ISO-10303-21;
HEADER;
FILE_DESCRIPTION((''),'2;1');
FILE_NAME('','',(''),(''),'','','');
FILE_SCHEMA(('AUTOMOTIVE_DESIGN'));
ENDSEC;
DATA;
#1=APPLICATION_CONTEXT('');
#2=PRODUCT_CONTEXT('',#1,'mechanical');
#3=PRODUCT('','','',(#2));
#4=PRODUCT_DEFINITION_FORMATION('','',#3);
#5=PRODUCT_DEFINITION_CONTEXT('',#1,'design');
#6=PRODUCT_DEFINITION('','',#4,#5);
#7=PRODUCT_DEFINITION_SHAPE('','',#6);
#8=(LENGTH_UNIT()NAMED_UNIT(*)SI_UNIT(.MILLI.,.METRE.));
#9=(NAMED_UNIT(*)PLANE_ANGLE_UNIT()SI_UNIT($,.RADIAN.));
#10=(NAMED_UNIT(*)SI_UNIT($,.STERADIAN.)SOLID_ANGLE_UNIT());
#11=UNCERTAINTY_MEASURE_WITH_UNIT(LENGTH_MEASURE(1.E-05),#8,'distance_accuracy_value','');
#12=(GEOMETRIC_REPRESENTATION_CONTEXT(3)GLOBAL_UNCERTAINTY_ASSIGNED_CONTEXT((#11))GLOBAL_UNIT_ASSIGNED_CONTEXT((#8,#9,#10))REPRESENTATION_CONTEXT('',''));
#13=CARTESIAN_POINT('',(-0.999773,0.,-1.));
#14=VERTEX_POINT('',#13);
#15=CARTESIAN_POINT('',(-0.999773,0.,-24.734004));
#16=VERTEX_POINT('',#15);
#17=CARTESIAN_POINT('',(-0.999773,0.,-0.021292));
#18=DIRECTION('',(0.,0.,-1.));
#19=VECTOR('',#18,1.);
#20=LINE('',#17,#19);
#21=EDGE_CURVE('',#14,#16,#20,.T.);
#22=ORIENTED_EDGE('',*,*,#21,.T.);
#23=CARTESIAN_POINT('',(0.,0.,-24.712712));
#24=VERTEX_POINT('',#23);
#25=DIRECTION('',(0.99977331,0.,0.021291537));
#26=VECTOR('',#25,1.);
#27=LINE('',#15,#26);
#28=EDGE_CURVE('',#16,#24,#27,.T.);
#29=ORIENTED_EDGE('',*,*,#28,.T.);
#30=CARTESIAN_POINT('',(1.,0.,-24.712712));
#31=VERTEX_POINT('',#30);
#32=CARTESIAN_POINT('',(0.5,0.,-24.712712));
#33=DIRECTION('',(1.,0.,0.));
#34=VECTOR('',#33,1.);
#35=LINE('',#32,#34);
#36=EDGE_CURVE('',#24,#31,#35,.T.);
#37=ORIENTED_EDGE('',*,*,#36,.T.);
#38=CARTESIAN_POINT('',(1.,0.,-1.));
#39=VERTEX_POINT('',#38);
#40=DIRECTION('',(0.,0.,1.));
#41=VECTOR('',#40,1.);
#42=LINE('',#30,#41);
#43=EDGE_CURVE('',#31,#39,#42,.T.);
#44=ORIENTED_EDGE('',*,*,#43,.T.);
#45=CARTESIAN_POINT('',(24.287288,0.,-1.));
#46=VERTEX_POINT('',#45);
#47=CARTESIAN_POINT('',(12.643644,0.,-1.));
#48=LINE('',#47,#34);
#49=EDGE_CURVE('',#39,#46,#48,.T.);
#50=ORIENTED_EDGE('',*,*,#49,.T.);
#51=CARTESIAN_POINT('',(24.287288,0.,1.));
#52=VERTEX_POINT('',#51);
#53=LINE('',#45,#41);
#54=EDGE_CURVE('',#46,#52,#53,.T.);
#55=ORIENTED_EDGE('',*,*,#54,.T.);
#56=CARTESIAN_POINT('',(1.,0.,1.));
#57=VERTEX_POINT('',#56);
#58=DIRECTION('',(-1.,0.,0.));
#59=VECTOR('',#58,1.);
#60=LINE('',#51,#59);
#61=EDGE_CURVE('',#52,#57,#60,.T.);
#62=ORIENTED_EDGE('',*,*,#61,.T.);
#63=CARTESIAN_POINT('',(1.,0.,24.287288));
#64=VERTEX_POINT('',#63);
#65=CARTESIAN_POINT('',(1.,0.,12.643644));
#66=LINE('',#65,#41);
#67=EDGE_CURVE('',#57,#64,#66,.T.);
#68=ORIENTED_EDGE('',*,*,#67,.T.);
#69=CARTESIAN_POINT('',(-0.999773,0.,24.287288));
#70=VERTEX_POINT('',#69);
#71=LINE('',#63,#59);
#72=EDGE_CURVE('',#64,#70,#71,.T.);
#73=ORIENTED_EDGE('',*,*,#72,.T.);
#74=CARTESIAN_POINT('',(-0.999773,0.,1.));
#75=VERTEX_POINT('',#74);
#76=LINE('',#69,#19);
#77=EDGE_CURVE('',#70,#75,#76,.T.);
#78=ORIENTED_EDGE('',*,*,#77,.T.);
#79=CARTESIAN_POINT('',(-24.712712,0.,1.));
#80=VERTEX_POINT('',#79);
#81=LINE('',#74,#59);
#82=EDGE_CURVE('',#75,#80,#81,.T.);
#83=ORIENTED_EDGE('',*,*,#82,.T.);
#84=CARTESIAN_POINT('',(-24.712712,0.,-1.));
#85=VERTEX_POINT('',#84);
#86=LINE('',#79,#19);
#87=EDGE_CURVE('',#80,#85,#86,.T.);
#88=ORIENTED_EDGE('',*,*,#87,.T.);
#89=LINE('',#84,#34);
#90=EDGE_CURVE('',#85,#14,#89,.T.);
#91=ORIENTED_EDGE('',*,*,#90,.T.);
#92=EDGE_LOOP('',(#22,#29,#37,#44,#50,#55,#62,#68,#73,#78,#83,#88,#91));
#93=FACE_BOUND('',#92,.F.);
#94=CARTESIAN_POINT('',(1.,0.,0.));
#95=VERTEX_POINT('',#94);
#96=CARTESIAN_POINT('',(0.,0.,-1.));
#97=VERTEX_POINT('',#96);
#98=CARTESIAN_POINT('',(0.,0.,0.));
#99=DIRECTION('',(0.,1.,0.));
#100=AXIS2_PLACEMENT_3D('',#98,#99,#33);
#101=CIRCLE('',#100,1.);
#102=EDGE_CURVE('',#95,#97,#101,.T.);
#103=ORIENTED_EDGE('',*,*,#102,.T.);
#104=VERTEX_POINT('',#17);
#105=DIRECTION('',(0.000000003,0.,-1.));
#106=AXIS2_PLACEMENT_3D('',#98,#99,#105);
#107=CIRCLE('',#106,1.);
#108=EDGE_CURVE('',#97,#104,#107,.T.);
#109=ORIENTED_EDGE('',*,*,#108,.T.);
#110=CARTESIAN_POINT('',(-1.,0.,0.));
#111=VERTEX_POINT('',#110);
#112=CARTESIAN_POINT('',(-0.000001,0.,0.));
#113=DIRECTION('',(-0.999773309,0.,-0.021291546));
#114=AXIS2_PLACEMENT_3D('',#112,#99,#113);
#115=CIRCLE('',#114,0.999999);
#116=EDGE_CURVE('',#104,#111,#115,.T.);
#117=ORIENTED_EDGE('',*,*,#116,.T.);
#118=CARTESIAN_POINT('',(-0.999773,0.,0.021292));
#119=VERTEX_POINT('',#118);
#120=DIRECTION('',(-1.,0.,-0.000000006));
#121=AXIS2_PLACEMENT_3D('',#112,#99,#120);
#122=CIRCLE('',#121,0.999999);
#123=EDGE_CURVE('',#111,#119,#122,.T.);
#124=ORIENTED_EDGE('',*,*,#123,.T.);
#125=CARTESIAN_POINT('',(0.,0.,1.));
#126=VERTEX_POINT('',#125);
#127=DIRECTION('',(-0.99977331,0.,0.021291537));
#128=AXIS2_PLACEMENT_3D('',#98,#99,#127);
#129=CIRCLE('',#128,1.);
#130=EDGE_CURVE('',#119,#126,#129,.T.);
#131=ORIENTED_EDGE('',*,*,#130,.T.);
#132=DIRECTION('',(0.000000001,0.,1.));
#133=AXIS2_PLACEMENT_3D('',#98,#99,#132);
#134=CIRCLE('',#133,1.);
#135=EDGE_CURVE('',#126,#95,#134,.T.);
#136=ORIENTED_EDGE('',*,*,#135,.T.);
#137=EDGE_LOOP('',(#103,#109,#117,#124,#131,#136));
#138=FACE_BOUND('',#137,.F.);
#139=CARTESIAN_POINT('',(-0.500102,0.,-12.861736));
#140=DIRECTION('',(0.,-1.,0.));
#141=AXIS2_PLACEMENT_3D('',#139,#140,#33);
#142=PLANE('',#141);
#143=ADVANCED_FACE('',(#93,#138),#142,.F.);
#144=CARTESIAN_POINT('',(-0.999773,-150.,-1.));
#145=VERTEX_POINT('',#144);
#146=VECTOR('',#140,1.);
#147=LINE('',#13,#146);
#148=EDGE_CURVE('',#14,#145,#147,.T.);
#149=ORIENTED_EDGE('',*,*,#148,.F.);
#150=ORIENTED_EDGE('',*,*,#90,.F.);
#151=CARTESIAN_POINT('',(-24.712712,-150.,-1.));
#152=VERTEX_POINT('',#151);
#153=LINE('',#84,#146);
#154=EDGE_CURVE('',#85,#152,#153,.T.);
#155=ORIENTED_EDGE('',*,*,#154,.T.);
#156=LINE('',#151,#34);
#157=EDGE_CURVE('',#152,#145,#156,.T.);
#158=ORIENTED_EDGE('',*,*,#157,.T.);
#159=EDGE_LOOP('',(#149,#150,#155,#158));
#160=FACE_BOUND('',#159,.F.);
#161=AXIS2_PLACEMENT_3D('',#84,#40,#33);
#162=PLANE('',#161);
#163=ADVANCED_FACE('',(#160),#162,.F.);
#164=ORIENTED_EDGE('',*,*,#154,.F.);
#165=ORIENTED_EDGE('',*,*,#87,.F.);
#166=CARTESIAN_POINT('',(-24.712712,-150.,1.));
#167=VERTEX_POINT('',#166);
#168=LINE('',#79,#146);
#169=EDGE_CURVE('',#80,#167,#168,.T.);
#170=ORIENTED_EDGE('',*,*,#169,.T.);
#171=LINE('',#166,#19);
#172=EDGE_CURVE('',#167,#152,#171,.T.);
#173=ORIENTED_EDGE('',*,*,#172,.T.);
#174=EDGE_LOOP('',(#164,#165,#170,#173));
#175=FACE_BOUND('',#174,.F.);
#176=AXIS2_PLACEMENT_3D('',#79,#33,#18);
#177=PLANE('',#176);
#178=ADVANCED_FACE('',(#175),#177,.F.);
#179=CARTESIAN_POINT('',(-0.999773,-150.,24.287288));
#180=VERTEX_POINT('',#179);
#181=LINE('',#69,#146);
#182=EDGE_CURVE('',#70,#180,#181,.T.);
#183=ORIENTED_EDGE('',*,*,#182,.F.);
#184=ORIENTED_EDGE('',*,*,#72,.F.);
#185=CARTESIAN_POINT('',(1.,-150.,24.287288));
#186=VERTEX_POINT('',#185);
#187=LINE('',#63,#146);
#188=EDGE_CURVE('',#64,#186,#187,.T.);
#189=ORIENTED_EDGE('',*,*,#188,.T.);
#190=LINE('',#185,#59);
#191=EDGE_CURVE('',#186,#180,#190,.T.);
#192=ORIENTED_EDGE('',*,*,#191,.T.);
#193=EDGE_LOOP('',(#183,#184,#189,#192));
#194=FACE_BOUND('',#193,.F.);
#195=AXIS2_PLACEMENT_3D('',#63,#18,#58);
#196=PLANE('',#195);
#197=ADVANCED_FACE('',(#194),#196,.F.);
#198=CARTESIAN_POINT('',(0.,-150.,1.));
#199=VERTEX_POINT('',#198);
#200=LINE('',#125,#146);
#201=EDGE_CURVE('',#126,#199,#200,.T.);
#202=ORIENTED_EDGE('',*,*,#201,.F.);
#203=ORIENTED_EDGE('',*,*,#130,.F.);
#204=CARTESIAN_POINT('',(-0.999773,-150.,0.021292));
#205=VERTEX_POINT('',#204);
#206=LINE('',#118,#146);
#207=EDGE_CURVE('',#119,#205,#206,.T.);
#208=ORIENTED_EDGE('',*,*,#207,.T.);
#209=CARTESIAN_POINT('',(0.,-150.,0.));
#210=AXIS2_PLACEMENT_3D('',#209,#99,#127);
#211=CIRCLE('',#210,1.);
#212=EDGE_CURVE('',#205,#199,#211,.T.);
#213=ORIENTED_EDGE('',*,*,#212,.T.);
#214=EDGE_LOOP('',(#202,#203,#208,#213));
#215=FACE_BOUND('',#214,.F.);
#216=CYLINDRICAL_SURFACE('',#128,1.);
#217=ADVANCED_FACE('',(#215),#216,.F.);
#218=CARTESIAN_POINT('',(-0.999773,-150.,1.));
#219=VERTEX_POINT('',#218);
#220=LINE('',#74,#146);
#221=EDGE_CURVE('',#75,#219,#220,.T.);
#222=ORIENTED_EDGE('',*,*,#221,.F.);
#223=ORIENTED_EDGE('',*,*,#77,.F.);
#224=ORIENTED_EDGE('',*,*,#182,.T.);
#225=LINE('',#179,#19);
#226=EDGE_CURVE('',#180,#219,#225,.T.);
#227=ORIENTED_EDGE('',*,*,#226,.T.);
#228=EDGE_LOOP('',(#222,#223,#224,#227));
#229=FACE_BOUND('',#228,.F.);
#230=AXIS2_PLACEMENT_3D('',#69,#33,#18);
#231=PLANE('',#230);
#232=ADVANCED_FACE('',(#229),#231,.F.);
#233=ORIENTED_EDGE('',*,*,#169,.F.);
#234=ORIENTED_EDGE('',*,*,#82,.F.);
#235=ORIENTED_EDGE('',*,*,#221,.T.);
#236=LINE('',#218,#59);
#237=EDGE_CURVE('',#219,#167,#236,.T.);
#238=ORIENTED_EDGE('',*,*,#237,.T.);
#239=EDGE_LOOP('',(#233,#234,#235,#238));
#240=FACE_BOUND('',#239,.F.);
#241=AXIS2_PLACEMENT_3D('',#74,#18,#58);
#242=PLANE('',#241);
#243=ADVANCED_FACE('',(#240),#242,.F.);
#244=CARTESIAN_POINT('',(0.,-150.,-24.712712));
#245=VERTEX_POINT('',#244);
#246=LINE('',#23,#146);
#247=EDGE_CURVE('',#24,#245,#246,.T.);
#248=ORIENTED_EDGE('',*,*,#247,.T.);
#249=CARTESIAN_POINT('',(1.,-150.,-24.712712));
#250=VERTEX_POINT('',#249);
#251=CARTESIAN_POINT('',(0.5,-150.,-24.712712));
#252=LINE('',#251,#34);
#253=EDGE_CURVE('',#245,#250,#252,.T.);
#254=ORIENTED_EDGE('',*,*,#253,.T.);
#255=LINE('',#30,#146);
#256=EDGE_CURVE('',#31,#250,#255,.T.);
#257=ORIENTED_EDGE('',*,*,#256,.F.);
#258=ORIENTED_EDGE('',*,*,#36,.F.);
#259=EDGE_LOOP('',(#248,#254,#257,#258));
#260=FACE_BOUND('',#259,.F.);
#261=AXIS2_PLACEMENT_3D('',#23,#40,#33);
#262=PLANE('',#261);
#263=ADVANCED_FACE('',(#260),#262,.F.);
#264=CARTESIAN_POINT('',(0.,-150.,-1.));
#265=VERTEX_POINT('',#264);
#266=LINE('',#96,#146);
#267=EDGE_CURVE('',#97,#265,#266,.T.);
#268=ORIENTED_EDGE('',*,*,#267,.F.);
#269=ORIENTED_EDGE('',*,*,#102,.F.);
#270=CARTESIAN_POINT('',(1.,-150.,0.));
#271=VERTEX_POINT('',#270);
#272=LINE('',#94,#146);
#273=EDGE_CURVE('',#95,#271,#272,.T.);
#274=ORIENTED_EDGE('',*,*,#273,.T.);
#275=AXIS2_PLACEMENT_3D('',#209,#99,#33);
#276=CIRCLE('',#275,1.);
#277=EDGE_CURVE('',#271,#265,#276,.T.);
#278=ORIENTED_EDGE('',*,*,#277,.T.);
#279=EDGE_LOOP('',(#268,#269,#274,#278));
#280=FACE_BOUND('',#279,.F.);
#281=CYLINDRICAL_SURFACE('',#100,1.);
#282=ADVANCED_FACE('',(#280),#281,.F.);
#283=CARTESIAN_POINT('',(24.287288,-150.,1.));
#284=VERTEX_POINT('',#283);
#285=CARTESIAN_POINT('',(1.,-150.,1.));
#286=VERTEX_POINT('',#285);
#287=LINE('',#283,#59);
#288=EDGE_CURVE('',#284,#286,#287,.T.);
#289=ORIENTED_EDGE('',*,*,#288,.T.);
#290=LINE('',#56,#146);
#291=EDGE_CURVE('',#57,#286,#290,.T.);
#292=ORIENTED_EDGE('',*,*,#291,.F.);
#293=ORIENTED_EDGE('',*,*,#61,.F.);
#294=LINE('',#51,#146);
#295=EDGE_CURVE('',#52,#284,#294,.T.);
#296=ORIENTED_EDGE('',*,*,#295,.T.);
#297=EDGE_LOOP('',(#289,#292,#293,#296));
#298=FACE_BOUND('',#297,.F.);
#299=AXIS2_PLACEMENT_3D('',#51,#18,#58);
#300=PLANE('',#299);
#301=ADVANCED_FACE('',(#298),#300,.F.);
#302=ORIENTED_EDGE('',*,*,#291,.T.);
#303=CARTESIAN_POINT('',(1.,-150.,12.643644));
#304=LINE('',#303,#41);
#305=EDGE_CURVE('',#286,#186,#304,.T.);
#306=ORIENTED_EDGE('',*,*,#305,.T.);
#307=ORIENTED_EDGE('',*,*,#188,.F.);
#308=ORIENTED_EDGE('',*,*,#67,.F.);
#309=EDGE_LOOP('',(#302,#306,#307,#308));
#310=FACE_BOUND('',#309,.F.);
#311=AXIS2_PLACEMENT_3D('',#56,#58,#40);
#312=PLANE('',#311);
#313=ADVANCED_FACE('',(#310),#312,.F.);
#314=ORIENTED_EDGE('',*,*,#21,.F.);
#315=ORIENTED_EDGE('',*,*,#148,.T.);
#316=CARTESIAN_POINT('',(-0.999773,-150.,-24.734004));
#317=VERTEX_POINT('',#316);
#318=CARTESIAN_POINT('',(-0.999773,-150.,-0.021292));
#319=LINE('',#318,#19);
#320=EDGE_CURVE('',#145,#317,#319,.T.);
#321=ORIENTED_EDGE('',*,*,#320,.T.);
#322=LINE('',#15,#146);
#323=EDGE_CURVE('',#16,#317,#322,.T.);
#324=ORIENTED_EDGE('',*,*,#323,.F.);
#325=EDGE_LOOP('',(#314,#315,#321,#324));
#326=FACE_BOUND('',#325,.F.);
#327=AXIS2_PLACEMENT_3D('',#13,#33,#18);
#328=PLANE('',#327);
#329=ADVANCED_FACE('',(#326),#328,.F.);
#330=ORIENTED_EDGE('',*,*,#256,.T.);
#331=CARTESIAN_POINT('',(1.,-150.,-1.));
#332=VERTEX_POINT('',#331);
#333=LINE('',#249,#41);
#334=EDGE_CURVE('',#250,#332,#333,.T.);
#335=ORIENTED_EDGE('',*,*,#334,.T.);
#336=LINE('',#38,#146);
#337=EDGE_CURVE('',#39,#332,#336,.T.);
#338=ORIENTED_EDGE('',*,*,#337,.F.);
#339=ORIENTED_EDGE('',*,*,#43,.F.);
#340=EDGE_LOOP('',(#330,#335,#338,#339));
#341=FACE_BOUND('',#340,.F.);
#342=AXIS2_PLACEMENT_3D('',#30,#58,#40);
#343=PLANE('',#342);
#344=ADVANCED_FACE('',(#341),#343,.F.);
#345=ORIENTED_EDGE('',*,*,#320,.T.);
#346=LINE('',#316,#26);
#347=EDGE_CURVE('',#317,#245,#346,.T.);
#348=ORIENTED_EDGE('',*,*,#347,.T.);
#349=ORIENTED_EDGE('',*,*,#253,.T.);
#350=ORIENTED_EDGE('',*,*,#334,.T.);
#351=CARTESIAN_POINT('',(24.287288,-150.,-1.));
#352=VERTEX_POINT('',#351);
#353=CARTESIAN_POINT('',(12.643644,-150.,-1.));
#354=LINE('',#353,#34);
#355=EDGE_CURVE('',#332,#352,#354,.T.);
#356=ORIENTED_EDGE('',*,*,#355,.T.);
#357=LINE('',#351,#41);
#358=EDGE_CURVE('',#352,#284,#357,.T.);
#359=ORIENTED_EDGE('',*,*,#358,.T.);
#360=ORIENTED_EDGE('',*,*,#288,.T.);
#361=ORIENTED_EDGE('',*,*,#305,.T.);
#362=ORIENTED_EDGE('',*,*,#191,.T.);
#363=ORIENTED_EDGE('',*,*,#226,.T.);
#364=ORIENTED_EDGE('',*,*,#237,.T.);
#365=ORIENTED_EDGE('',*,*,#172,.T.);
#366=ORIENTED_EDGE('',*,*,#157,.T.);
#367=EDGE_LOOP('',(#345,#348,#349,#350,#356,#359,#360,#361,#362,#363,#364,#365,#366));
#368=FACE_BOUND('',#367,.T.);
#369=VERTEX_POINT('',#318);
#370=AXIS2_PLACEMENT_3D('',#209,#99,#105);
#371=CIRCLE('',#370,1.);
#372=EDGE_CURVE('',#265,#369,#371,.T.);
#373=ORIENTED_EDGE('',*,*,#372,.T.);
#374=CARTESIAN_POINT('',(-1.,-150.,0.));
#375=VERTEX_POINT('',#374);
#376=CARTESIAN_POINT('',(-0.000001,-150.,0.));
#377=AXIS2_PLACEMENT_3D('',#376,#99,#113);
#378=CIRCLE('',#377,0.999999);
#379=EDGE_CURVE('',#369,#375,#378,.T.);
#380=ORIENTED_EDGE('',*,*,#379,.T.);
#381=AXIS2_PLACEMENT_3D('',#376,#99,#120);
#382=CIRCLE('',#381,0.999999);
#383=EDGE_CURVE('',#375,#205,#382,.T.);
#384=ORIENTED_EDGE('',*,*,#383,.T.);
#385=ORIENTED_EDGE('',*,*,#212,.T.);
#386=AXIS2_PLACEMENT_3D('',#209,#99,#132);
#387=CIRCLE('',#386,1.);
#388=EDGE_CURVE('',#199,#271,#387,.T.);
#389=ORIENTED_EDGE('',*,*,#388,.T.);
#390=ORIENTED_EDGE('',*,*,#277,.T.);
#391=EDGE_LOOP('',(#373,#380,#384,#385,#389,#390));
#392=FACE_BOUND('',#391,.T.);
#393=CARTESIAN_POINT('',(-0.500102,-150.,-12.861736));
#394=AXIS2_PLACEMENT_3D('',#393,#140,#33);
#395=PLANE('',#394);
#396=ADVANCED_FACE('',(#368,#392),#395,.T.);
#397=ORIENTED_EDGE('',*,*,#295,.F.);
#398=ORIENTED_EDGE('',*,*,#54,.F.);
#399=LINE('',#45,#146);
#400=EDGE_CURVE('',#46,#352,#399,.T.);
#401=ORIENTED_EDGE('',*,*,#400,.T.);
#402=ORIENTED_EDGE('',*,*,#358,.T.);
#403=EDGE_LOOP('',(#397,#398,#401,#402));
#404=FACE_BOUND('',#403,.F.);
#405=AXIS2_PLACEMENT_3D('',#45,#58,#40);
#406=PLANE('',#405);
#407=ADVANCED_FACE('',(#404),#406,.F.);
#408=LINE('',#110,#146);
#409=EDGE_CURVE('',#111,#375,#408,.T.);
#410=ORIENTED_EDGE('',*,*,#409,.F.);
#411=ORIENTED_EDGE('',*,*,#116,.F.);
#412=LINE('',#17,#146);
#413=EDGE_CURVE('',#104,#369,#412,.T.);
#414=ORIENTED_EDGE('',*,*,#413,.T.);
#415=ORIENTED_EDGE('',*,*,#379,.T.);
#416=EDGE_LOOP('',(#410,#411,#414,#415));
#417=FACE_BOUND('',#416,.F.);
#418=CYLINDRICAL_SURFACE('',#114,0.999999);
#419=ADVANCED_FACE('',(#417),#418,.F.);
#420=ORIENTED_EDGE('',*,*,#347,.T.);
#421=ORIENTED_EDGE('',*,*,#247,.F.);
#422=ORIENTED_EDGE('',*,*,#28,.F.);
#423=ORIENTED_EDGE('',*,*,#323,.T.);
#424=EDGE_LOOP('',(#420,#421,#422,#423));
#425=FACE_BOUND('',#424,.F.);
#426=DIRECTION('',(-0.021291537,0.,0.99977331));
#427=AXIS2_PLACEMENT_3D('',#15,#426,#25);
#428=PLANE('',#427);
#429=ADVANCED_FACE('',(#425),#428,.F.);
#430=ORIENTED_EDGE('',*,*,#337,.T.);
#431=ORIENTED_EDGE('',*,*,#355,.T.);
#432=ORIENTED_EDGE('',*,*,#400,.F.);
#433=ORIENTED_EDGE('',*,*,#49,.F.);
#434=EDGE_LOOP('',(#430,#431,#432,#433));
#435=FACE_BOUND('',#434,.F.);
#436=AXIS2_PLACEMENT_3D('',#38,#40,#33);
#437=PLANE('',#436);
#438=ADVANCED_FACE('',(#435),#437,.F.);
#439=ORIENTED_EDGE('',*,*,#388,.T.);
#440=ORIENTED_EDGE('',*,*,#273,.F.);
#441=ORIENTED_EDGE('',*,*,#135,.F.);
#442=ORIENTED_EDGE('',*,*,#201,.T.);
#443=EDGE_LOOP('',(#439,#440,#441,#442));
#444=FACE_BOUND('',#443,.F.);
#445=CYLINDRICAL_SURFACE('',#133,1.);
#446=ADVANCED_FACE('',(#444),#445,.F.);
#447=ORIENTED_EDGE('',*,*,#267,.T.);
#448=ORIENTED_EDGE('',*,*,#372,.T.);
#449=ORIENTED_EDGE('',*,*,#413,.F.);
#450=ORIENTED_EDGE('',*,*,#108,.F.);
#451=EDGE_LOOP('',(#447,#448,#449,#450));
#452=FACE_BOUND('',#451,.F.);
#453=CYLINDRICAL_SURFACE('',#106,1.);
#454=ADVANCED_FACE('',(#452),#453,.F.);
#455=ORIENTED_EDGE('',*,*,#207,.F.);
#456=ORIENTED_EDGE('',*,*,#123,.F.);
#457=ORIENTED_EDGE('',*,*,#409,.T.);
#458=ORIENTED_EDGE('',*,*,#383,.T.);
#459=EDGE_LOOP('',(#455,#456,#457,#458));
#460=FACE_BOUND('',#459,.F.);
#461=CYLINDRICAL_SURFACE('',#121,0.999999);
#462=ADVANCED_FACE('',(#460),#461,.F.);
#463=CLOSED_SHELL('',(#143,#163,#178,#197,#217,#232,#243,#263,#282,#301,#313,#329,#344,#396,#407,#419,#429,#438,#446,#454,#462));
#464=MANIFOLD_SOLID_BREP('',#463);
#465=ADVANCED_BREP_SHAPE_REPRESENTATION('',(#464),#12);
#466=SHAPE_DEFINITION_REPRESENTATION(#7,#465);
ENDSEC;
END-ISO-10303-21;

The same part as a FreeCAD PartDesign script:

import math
import FreeCAD as App
import Part
import Sketcher
Q = App.Units.Quantity


def add_polygon(sketch, points):
    """Adds a closed chain of lines whose ends are joined by coincident constraints."""
    first, n = sketch.GeometryCount, len(points)
    for a, b in zip(points, points[1:] + points[:1]):
        sketch.addGeometry(Part.LineSegment(App.Vector(*a, 0), App.Vector(*b, 0)), False)
    for i in range(n):
        sketch.addConstraint(Sketcher.Constraint("Coincident", first + i, 2, first + (i + 1) % n, 1))

doc = App.newDocument("Part")
body = doc.addObject("PartDesign::Body", "Body")

sketch1 = doc.addObject("Sketcher::SketchObject", "Sketch")
body.addObject(sketch1)
sketch1.AttachmentSupport = (doc.XZ_Plane, [""])
sketch1.MapMode = "FlatFace"
add_polygon(sketch1, [(-1, -24.734), (0, -24.713), (1, -24.713), (1, -1), (24.287, -1), (24.287, 1), (1, 1), (1, 24.287), (-1, 24.287), (-1, 1), (-24.713, 1), (-24.713, -1), (-1, -1)])
sketch1.addGeometry(Part.ArcOfCircle(Part.Circle(App.Vector(0, 0, 0), App.Vector(0, 0, 1), 1), math.radians(90), math.radians(179)), False)
sketch1.addGeometry(Part.ArcOfCircle(Part.Circle(App.Vector(0, 0, 0), App.Vector(0, 0, 1), 1), math.radians(0), math.radians(90)), False)
sketch1.addGeometry(Part.ArcOfCircle(Part.Circle(App.Vector(0, 0, 0), App.Vector(0, 0, 1), 1), math.radians(-90), math.radians(0)), False)
sketch1.addGeometry(Part.ArcOfCircle(Part.Circle(App.Vector(0, 0, 0), App.Vector(0, 0, 1), 1), math.radians(-179), math.radians(-90)), False)
sketch1.addGeometry(Part.ArcOfCircle(Part.Circle(App.Vector(0, 0, 0), App.Vector(0, 0, 1), 1), math.radians(180), math.radians(181.22)), False)
sketch1.addGeometry(Part.ArcOfCircle(Part.Circle(App.Vector(0, 0, 0), App.Vector(0, 0, 1), 1), math.radians(178.78), math.radians(180)), False)
sketch1.addConstraint([
    Sketcher.Constraint("Tangent", 13, 1, 14, 2),
    Sketcher.Constraint("Tangent", 14, 1, 15, 2),
    Sketcher.Constraint("Tangent", 15, 1, 16, 2),
    Sketcher.Constraint("Tangent", 16, 1, 17, 2),
    Sketcher.Constraint("Tangent", 17, 1, 18, 2),
    Sketcher.Constraint("Tangent", 18, 1, 13, 2),
    Sketcher.Constraint("Horizontal", 1),
    Sketcher.Constraint("Vertical", 2),
    Sketcher.Constraint("Horizontal", 3),
    Sketcher.Constraint("Vertical", 4),
    Sketcher.Constraint("Horizontal", 5),
    Sketcher.Constraint("Vertical", 6),
    Sketcher.Constraint("Horizontal", 7),
    Sketcher.Constraint("Vertical", 8),
    Sketcher.Constraint("Horizontal", 9),
    Sketcher.Constraint("Vertical", 10),
    Sketcher.Constraint("Horizontal", 11),
    Sketcher.Constraint("Vertical", 12),
    Sketcher.Constraint("Coincident", 13, 3, -1, 1),
    Sketcher.Constraint("Coincident", 15, 3, -1, 1),
    Sketcher.Constraint("Equal", 16, 17),
    Sketcher.Constraint("Symmetric", 2, 2, 5, 2, -1),
    Sketcher.Constraint("Symmetric", 8, 2, 11, 2, -1),
    Sketcher.Constraint("PointOnObject", 0, 2, -2),
    Sketcher.Constraint("PointOnObject", 13, 1, -2),
    Sketcher.Constraint("PointOnObject", 14, 1, -1),
    Sketcher.Constraint("PointOnObject", 15, 1, -2),
    Sketcher.Constraint("PointOnObject", 17, 1, -1),
    Sketcher.Constraint("Horizontal", 5, 2, 8, 2),
    Sketcher.Constraint("Horizontal", 9, 2, 13, 1),
    Sketcher.Constraint("Vertical", 6, 2, 14, 1),
    Sketcher.Constraint("Vertical", 12, 2, 16, 1),
    Sketcher.Constraint("Vertical", 16, 1, 18, 1),
    Sketcher.Constraint("Equal", 5, 6),
    Sketcher.Constraint("Radius", 13, Q("1 mm")),
    Sketcher.Constraint("Distance", 0, Q("1 mm")),
    Sketcher.Constraint("Angle", 0, Q("1.220007 deg")),
    Sketcher.Constraint("DistanceX", 9, 2, 9, 1, Q("23.712939 mm")),
    Sketcher.Constraint("DistanceX", 3, 1, 3, 2, Q("23.287288 mm")),
    Sketcher.Constraint("DistanceY", 2, 1, 2, 2, Q("23.712712 mm")),
])
pad1 = doc.addObject("PartDesign::Pad", "Pad")
body.addObject(pad1)
pad1.Profile = sketch1
pad1.Length = 150

doc.recompute()
